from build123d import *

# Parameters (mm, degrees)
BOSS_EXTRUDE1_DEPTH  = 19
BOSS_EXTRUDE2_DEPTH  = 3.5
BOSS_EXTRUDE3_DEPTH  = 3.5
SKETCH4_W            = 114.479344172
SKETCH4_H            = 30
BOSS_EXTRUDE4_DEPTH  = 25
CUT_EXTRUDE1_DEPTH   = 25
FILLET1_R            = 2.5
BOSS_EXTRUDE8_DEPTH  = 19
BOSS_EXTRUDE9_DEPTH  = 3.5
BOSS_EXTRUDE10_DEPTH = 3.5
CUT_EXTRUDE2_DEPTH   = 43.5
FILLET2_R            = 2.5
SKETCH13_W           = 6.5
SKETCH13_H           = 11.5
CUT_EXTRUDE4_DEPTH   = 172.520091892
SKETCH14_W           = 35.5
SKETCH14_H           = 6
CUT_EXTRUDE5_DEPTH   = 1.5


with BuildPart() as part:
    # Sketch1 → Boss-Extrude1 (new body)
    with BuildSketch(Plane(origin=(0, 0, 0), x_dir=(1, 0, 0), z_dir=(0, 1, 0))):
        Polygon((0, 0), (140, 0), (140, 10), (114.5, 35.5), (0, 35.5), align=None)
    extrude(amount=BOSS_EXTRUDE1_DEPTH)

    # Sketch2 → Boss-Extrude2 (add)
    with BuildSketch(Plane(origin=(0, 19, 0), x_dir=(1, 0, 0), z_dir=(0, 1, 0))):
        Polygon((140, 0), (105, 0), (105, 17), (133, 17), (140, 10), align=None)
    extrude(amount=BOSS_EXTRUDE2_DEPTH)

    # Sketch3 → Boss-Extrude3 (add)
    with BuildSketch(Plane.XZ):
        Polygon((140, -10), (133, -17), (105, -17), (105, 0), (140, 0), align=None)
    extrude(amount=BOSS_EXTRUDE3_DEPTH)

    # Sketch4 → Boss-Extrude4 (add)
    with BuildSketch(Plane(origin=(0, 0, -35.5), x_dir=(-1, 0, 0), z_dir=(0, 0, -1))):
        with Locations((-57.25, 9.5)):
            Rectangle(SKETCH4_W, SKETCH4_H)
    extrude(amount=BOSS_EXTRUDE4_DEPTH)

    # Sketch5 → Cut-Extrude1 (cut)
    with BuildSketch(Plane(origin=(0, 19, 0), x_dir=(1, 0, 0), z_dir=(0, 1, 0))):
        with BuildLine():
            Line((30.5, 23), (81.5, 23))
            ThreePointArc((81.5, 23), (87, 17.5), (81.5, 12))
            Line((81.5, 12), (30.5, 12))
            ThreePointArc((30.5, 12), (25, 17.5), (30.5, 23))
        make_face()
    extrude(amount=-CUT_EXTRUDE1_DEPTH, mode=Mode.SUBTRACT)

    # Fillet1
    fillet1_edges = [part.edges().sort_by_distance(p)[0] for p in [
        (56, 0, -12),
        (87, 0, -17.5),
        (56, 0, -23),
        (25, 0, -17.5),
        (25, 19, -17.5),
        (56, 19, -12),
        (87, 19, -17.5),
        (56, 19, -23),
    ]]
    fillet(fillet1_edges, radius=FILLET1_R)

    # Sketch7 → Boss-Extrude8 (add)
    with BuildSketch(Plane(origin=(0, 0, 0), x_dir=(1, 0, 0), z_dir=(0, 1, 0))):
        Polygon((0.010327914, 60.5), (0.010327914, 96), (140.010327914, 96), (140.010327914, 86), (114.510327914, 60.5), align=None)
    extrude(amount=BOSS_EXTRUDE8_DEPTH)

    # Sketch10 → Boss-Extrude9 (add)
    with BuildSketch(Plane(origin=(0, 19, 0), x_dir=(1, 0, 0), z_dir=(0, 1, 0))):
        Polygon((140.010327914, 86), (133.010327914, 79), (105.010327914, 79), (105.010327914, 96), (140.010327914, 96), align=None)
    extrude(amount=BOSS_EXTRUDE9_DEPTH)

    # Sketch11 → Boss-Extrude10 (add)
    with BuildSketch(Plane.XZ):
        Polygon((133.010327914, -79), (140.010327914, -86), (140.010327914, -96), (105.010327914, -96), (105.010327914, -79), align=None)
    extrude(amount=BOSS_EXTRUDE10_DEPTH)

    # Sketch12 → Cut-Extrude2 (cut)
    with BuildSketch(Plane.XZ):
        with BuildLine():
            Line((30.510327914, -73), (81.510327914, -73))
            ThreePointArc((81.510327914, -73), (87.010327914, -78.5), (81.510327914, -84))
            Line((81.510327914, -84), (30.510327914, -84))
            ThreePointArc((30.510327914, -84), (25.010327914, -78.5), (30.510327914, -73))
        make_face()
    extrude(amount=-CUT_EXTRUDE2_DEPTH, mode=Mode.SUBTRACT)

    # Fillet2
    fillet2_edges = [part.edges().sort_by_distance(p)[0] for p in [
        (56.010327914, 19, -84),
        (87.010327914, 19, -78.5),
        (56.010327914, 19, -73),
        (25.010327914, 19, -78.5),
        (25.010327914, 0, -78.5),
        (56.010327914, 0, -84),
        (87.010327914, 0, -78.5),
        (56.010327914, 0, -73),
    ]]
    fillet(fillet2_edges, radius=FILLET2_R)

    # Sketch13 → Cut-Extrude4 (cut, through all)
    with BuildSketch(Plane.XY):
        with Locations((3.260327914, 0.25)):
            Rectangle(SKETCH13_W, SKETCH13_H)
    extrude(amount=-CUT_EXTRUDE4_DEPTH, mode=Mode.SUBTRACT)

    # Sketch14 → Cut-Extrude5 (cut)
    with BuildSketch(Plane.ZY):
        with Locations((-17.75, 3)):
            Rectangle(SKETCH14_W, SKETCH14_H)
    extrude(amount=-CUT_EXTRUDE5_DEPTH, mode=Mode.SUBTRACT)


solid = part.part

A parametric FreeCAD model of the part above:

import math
import FreeCAD as App
import Part
import Sketcher
from FreeCAD import Vector
Q = App.Units.Quantity


def edges_at(feature, points):
    """Names of the edges that pass closest to the given points."""
    edges = feature.Shape.Edges
    near = lambda p: min(range(len(edges)), key=lambda i: edges[i].distToShape(Part.Vertex(*p))[0])
    return sorted({f"Edge{near(p) + 1}" for p in points})


def add_polygon(sketch, points):
    """Adds a closed chain of lines whose ends are joined by coincident constraints."""
    first, n = sketch.GeometryCount, len(points)
    for a, b in zip(points, points[1:] + points[:1]):
        sketch.addGeometry(Part.LineSegment(App.Vector(*a, 0), App.Vector(*b, 0)), False)
    for i in range(n):
        sketch.addConstraint(Sketcher.Constraint("Coincident", first + i, 2, first + (i + 1) % n, 1))

doc = App.newDocument("Part")
params = doc.addObject("Spreadsheet::Sheet", "Params")
for row, (alias, value) in enumerate([
    ("sketch1_width", "140 mm"),
    ("sketch1_height", "10 mm"),
    ("sketch1_width2", "114.5 mm"),
    ("pad1_length", "19 mm"),
    ("sketch2_width", "35 mm"),
    ("sketch2_width2", "28 mm"),
    ("sketch2_height", "10 mm"),
    ("sketch2_height2", "17 mm"),
    ("pad2_length", "3.5 mm"),
    ("sketch3_width", "35 mm"),
    ("sketch3_width2", "28 mm"),
    ("sketch3_height", "10 mm"),
    ("sketch3_height2", "17 mm"),
    ("pad3_length", "3.5 mm"),
    ("sketch4_height", "30 mm"),
    ("pad4_length", "25 mm"),
    ("sketch5_radius", "5.5 mm"),
    ("sketch5_width", "51 mm"),
    ("pocket1_length", "25 mm"),
    ("fillet_radius", "2.5 mm"),
    ("sketch6_width", "140 mm"),
    ("sketch6_height", "10 mm"),
    ("sketch6_width2", "114.5 mm"),
    ("pad5_length", "19 mm"),
    ("sketch7_width", "35 mm"),
    ("sketch7_width2", "28 mm"),
    ("sketch7_height", "10 mm"),
    ("sketch7_height2", "17 mm"),
    ("pad6_length", "3.5 mm"),
    ("sketch8_width", "28 mm"),
    ("sketch8_width2", "35 mm"),
    ("sketch8_height", "17 mm"),
    ("sketch8_height2", "10 mm"),
    ("pad7_length", "3.5 mm"),
    ("sketch9_radius", "5.5 mm"),
    ("sketch9_width", "51 mm"),
    ("pocket2_length", "43.5 mm"),
    ("fillet2_radius", "2.5 mm"),
    ("sketch10_width", "6.5 mm"),
    ("sketch10_height", "11.5 mm"),
    ("sketch11_width", "6 mm"),
    ("sketch11_height", "35.5 mm"),
    ("pocket4_length", "1.5 mm"),
], start=1):
    params.set(f"A{row}", alias)
    params.set(f"B{row}", "=" + value)
    params.setAlias(f"B{row}", alias)

body = doc.addObject("PartDesign::Body", "Body")

# Sketch on XZ plane
sketch1 = body.newObject("Sketcher::SketchObject", "Sketch")
sketch1.AttachmentSupport = (doc.getObject("XZ_Plane"), [""])
sketch1.MapMode = "FlatFace"
add_polygon(sketch1, [(0, 0), (140, 0), (140, -10), (114, -36), (0, -36)])  # lines 0-4
sketch1.addConstraint(Sketcher.Constraint("Horizontal", 0))
sketch1.addConstraint(Sketcher.Constraint("Vertical", 1))
sketch1.addConstraint(Sketcher.Constraint("Horizontal", 3))
sketch1.addConstraint(Sketcher.Constraint("Vertical", 4))
sketch1.addConstraint(Sketcher.Constraint("Coincident", 4, 2, -1, 1))
sketch1.addConstraint(Sketcher.Constraint("DistanceX", 0, 1, 0, 2, Q("140 mm")))
sketch1.addConstraint(Sketcher.Constraint("DistanceY", 1, 2, 1, 1, Q("10 mm")))
sketch1.addConstraint(Sketcher.Constraint("Angle", 2, Q("-135 deg")))
sketch1.addConstraint(Sketcher.Constraint("DistanceX", 3, 2, 3, 1, Q("114.5 mm")))
sketch1.setExpression("Constraints[10]", "Params.sketch1_width")
sketch1.setExpression("Constraints[11]", "Params.sketch1_height")
sketch1.setExpression("Constraints[13]", "Params.sketch1_width2")
pad1 = body.newObject("PartDesign::Pad", "Pad")
pad1.Profile = sketch1
pad1.setExpression("Length", "Params.pad1_length")
pad1.Reversed = True

# Sketch on XZ plane
sketch2 = body.newObject("Sketcher::SketchObject", "Sketch001")
sketch2.AttachmentSupport = (doc.getObject("XZ_Plane"), [""])
sketch2.MapMode = "FlatFace"
sketch2.AttachmentOffset = App.Placement(Vector(0, 0, -19), App.Rotation())
add_polygon(sketch2, [(105, 0), (140, 0), (140, -10), (133, -17), (105, -17)])  # lines 0-4
sketch2.addConstraint(Sketcher.Constraint("Horizontal", 0))
sketch2.addConstraint(Sketcher.Constraint("Vertical", 1))
sketch2.addConstraint(Sketcher.Constraint("Horizontal", 3))
sketch2.addConstraint(Sketcher.Constraint("Vertical", 4))
sketch2.addConstraint(Sketcher.Constraint("PointOnObject", 0, 2, -1))
sketch2.addConstraint(Sketcher.Constraint("DistanceX", 0, 1, 0, 2, Q("35 mm")))
sketch2.addConstraint(Sketcher.Constraint("DistanceX", 3, 2, 3, 1, Q("28 mm")))
sketch2.addConstraint(Sketcher.Constraint("DistanceY", 1, 2, 1, 1, Q("10 mm")))
sketch2.addConstraint(Sketcher.Constraint("DistanceY", 4, 1, 4, 2, Q("17 mm")))
sketch2.addConstraint(Sketcher.Constraint("DistanceX", -1, 1, 0, 2, Q("140 mm")))
sketch2.setExpression("Constraints[10]", "Params.sketch2_width")
sketch2.setExpression("Constraints[11]", "Params.sketch2_width2")
sketch2.setExpression("Constraints[12]", "Params.sketch2_height")
sketch2.setExpression("Constraints[13]", "Params.sketch2_height2")
pad2 = body.newObject("PartDesign::Pad", "Pad001")
pad2.Profile = sketch2
pad2.setExpression("Length", "Params.pad2_length")
pad2.Reversed = True

# Sketch on XZ plane
sketch3 = body.newObject("Sketcher::SketchObject", "Sketch002")
sketch3.AttachmentSupport = (doc.getObject("XZ_Plane"), [""])
sketch3.MapMode = "FlatFace"
add_polygon(sketch3, [(133, -17), (140, -10), (140, 0), (105, 0), (105, -17)])  # lines 0-4
sketch3.addConstraint(Sketcher.Constraint("Vertical", 1))
sketch3.addConstraint(Sketcher.Constraint("Horizontal", 2))
sketch3.addConstraint(Sketcher.Constraint("Vertical", 3))
sketch3.addConstraint(Sketcher.Constraint("Horizontal", 4))
sketch3.addConstraint(Sketcher.Constraint("PointOnObject", 1, 2, -1))
sketch3.addConstraint(Sketcher.Constraint("DistanceX", 2, 2, 2, 1, Q("35 mm")))
sketch3.addConstraint(Sketcher.Constraint("DistanceX", 4, 1, 4, 2, Q("28 mm")))
sketch3.addConstraint(Sketcher.Constraint("DistanceY", 1, 1, 1, 2, Q("10 mm")))
sketch3.addConstraint(Sketcher.Constraint("DistanceY", 3, 2, 3, 1, Q("17 mm")))
sketch3.addConstraint(Sketcher.Constraint("DistanceX", -1, 1, 0, 2, Q("140 mm")))
sketch3.setExpression("Constraints[10]", "Params.sketch3_width")
sketch3.setExpression("Constraints[11]", "Params.sketch3_width2")
sketch3.setExpression("Constraints[12]", "Params.sketch3_height")
sketch3.setExpression("Constraints[13]", "Params.sketch3_height2")
pad3 = body.newObject("PartDesign::Pad", "Pad002")
pad3.Profile = sketch3
pad3.setExpression("Length", "Params.pad3_length")

# Sketch on XY plane
sketch4 = body.newObject("Sketcher::SketchObject", "Sketch003")
sketch4.AttachmentSupport = (doc.getObject("XY_Plane"), [""])
sketch4.MapMode = "FlatFace"
sketch4.AttachmentOffset = App.Placement(Vector(0, 0, -35.5), App.Rotation())
add_polygon(sketch4, [(114, 24), (114, -6), (0, -6), (0, 24)])  # lines 0-3
sketch4.addConstraint(Sketcher.Constraint("Vertical", 0))
sketch4.addConstraint(Sketcher.Constraint("Horizontal", 1))
sketch4.addConstraint(Sketcher.Constraint("Vertical", 2))
sketch4.addConstraint(Sketcher.Constraint("Horizontal", 3))
sketch4.addConstraint(Sketcher.Constraint("DistanceY", 0, 2, 0, 1, Q("30 mm")))
sketch4.addConstraint(Sketcher.Constraint("DistanceY", 0, 2, -1, 1, Q("5.5 mm")))
sketch4.addConstraint(Sketcher.Constraint("DistanceX", 1, 2, 1, 1, Q("114.479344 mm")))
sketch4.addConstraint(Sketcher.Constraint("DistanceX", -1, 1, 0, 2, Q("114.489672 mm")))
sketch4.setExpression("Constraints[8]", "Params.sketch4_height")
pad4 = body.newObject("PartDesign::Pad", "Pad003")
pad4.Profile = sketch4
pad4.setExpression("Length", "Params.pad4_length")
pad4.Reversed = True

# Sketch on XZ plane
sketch5 = body.newObject("Sketcher::SketchObject", "Sketch004")
sketch5.AttachmentSupport = (doc.getObject("XZ_Plane"), [""])
sketch5.MapMode = "FlatFace"
sketch5.AttachmentOffset = App.Placement(Vector(0, 0, -19), App.Rotation())
sketch5.addGeometry(Part.LineSegment(Vector(82, -23, 0), Vector(30, -23, 0)), False)
sketch5.addGeometry(Part.ArcOfCircle(Part.Circle(Vector(30, -18, 0), Vector(0, 0, 1), 6), math.radians(90), math.radians(270)), False)
sketch5.addGeometry(Part.LineSegment(Vector(30, -12, 0), Vector(82, -12, 0)), False)
sketch5.addGeometry(Part.ArcOfCircle(Part.Circle(Vector(82, -18, 0), Vector(0, 0, 1), 6), math.radians(-90), math.radians(90)), False)
sketch5.addConstraint(Sketcher.Constraint("Tangent", 0, 2, 1, 2))
sketch5.addConstraint(Sketcher.Constraint("Tangent", 1, 1, 2, 1))
sketch5.addConstraint(Sketcher.Constraint("Tangent", 2, 2, 3, 2))
sketch5.addConstraint(Sketcher.Constraint("Tangent", 3, 1, 0, 1))
sketch5.addConstraint(Sketcher.Constraint("Horizontal", 0))
sketch5.addConstraint(Sketcher.Constraint("Horizontal", 2))
sketch5.addConstraint(Sketcher.Constraint("Radius", 1, Q("5.5 mm")))
sketch5.addConstraint(Sketcher.Constraint("DistanceX", 0, 2, 0, 1, Q("51 mm")))
sketch5.addConstraint(Sketcher.Constraint("DistanceY", 0, 2, -1, 1, Q("23 mm")))
sketch5.addConstraint(Sketcher.Constraint("DistanceX", -1, 1, 1, 3, Q("30.5 mm")))
sketch5.setExpression("Constraints[6]", "Params.sketch5_radius")
sketch5.setExpression("Constraints[7]", "Params.sketch5_width")
pocket1 = body.newObject("PartDesign::Pocket", "Pocket")
pocket1.Profile = sketch5
pocket1.setExpression("Length", "Params.pocket1_length")
pocket1.Reversed = True
doc.recompute()

fillet = body.newObject("PartDesign::Fillet", "Fillet")
fillet.Base = (pocket1, edges_at(pocket1, [
    (56, 0, -12),
    (87, 0, -17.5),
    (56, 0, -23),
    (25, 0, -17.5),
    (25, 19, -17.5),
    (56, 19, -12),
    (87, 19, -17.5),
    (56, 19, -23),
]))
fillet.setExpression("Radius", "Params.fillet_radius")

# Sketch on XZ plane
sketch6 = body.newObject("Sketcher::SketchObject", "Sketch005")
sketch6.AttachmentSupport = (doc.getObject("XZ_Plane"), [""])
sketch6.MapMode = "FlatFace"
add_polygon(sketch6, [(0, -96), (0, -60), (115, -60), (140, -86), (140, -96)])  # lines 0-4
sketch6.addConstraint(Sketcher.Constraint("Vertical", 0))
sketch6.addConstraint(Sketcher.Constraint("Horizontal", 1))
sketch6.addConstraint(Sketcher.Constraint("Vertical", 3))
sketch6.addConstraint(Sketcher.Constraint("Horizontal", 4))
sketch6.addConstraint(Sketcher.Constraint("DistanceX", 4, 2, 4, 1, Q("140 mm")))
sketch6.addConstraint(Sketcher.Constraint("DistanceY", 3, 2, 3, 1, Q("10 mm")))
sketch6.addConstraint(Sketcher.Constraint("Angle", 2, Q("-45 deg")))
sketch6.addConstraint(Sketcher.Constraint("DistanceX", 1, 1, 1, 2, Q("114.5 mm")))
sketch6.addConstraint(Sketcher.Constraint("DistanceY", 2, 2, -1, 1, Q("86 mm")))
sketch6.addConstraint(Sketcher.Constraint("DistanceX", -1, 1, 0, 2, Q("0.010328 mm")))
sketch6.setExpression("Constraints[9]", "Params.sketch6_width")
sketch6.setExpression("Constraints[10]", "Params.sketch6_height")
sketch6.setExpression("Constraints[12]", "Params.sketch6_width2")
pad5 = body.newObject("PartDesign::Pad", "Pad004")
pad5.Profile = sketch6
pad5.setExpression("Length", "Params.pad5_length")
pad5.Reversed = True

# Sketch on XZ plane
sketch7 = body.newObject("Sketcher::SketchObject", "Sketch006")
sketch7.AttachmentSupport = (doc.getObject("XZ_Plane"), [""])
sketch7.MapMode = "FlatFace"
sketch7.AttachmentOffset = App.Placement(Vector(0, 0, -19), App.Rotation())
add_polygon(sketch7, [(133, -79), (140, -86), (140, -96), (105, -96), (105, -79)])  # lines 0-4
sketch7.addConstraint(Sketcher.Constraint("Vertical", 1))
sketch7.addConstraint(Sketcher.Constraint("Horizontal", 2))
sketch7.addConstraint(Sketcher.Constraint("Vertical", 3))
sketch7.addConstraint(Sketcher.Constraint("Horizontal", 4))
sketch7.addConstraint(Sketcher.Constraint("DistanceX", 2, 2, 2, 1, Q("35 mm")))
sketch7.addConstraint(Sketcher.Constraint("DistanceX", 4, 1, 4, 2, Q("28 mm")))
sketch7.addConstraint(Sketcher.Constraint("DistanceY", 1, 2, 1, 1, Q("10 mm")))
sketch7.addConstraint(Sketcher.Constraint("DistanceY", 3, 1, 3, 2, Q("17 mm")))
sketch7.addConstraint(Sketcher.Constraint("DistanceY", 0, 2, -1, 1, Q("86 mm")))
sketch7.addConstraint(Sketcher.Constraint("DistanceX", -1, 1, 0, 2, Q("140.010328 mm")))
sketch7.setExpression("Constraints[9]", "Params.sketch7_width")
sketch7.setExpression("Constraints[10]", "Params.sketch7_width2")
sketch7.setExpression("Constraints[11]", "Params.sketch7_height")
sketch7.setExpression("Constraints[12]", "Params.sketch7_height2")
pad6 = body.newObject("PartDesign::Pad", "Pad005")
pad6.Profile = sketch7
pad6.setExpression("Length", "Params.pad6_length")
pad6.Reversed = True

# Sketch on XZ plane
sketch8 = body.newObject("Sketcher::SketchObject", "Sketch007")
sketch8.AttachmentSupport = (doc.getObject("XZ_Plane"), [""])
sketch8.MapMode = "FlatFace"
add_polygon(sketch8, [(140, -86), (133, -79), (105, -79), (105, -96), (140, -96)])  # lines 0-4
sketch8.addConstraint(Sketcher.Constraint("Horizontal", 1))
sketch8.addConstraint(Sketcher.Constraint("Vertical", 2))
sketch8.addConstraint(Sketcher.Constraint("Horizontal", 3))
sketch8.addConstraint(Sketcher.Constraint("Vertical", 4))
sketch8.addConstraint(Sketcher.Constraint("DistanceX", 1, 2, 1, 1, Q("28 mm")))
sketch8.addConstraint(Sketcher.Constraint("DistanceX", 3, 1, 3, 2, Q("35 mm")))
sketch8.addConstraint(Sketcher.Constraint("DistanceY", 2, 2, 2, 1, Q("17 mm")))
sketch8.addConstraint(Sketcher.Constraint("DistanceY", 4, 1, 4, 2, Q("10 mm")))
sketch8.addConstraint(Sketcher.Constraint("DistanceY", 0, 2, -1, 1, Q("79 mm")))
sketch8.addConstraint(Sketcher.Constraint("DistanceX", -1, 1, 0, 2, Q("133.010328 mm")))
sketch8.setExpression("Constraints[9]", "Params.sketch8_width")
sketch8.setExpression("Constraints[10]", "Params.sketch8_width2")
sketch8.setExpression("Constraints[11]", "Params.sketch8_height")
sketch8.setExpression("Constraints[12]", "Params.sketch8_height2")
pad7 = body.newObject("PartDesign::Pad", "Pad006")
pad7.Profile = sketch8
pad7.setExpression("Length", "Params.pad7_length")

# Sketch on XZ plane
sketch9 = body.newObject("Sketcher::SketchObject", "Sketch008")
sketch9.AttachmentSupport = (doc.getObject("XZ_Plane"), [""])
sketch9.MapMode = "FlatFace"
sketch9.addGeometry(Part.LineSegment(Vector(82, -73, 0), Vector(31, -73, 0)), False)
sketch9.addGeometry(Part.ArcOfCircle(Part.Circle(Vector(31, -78, 0), Vector(0, 0, 1), 6), math.radians(90), math.radians(270)), False)
sketch9.addGeometry(Part.LineSegment(Vector(31, -84, 0), Vector(82, -84, 0)), False)
sketch9.addGeometry(Part.ArcOfCircle(Part.Circle(Vector(82, -78, 0), Vector(0, 0, 1), 6), math.radians(-90), math.radians(90)), False)
sketch9.addConstraint(Sketcher.Constraint("Tangent", 0, 2, 1, 1))
sketch9.addConstraint(Sketcher.Constraint("Tangent", 1, 2, 2, 1))
sketch9.addConstraint(Sketcher.Constraint("Tangent", 2, 2, 3, 1))
sketch9.addConstraint(Sketcher.Constraint("Tangent", 3, 2, 0, 1))
sketch9.addConstraint(Sketcher.Constraint("Horizontal", 0))
sketch9.addConstraint(Sketcher.Constraint("Horizontal", 2))
sketch9.addConstraint(Sketcher.Constraint("Radius", 1, Q("5.5 mm")))
sketch9.addConstraint(Sketcher.Constraint("DistanceX", 0, 2, 0, 1, Q("51 mm")))
sketch9.addConstraint(Sketcher.Constraint("DistanceY", 0, 2, -1, 1, Q("73 mm")))
sketch9.addConstraint(Sketcher.Constraint("DistanceX", -1, 1, 1, 3, Q("30.510328 mm")))
sketch9.setExpression("Constraints[6]", "Params.sketch9_radius")
sketch9.setExpression("Constraints[7]", "Params.sketch9_width")
pocket2 = body.newObject("PartDesign::Pocket", "Pocket001")
pocket2.Profile = sketch9
pocket2.setExpression("Length", "Params.pocket2_length")
doc.recompute()

fillet2 = body.newObject("PartDesign::Fillet", "Fillet001")
fillet2.Base = (pocket2, edges_at(pocket2, [
    (56.01, 19, -84),
    (87.01, 19, -78.5),
    (56.01, 19, -73),
    (25.01, 19, -78.5),
    (25.01, 0, -78.5),
    (56.01, 0, -84),
    (87.01, 0, -78.5),
    (56.01, 0, -73),
]))
fillet2.setExpression("Radius", "Params.fillet2_radius")

# Sketch on XY plane
sketch10 = body.newObject("Sketcher::SketchObject", "Sketch009")
sketch10.AttachmentSupport = (doc.getObject("XY_Plane"), [""])
sketch10.MapMode = "FlatFace"
add_polygon(sketch10, [(0, 6), (0, -6), (7, -6), (7, 6)])  # lines 0-3
sketch10.addConstraint(Sketcher.Constraint("Vertical", 0))
sketch10.addConstraint(Sketcher.Constraint("Horizontal", 1))
sketch10.addConstraint(Sketcher.Constraint("Vertical", 2))
sketch10.addConstraint(Sketcher.Constraint("Horizontal", 3))
sketch10.addConstraint(Sketcher.Constraint("DistanceX", 1, 1, 1, 2, Q("6.5 mm")))
sketch10.addConstraint(Sketcher.Constraint("DistanceY", 0, 2, 0, 1, Q("11.5 mm")))
sketch10.addConstraint(Sketcher.Constraint("DistanceY", -1, 1, 2, 2, Q("6 mm")))
sketch10.addConstraint(Sketcher.Constraint("DistanceX", -1, 1, 0, 2, Q("0.010328 mm")))
sketch10.setExpression("Constraints[8]", "Params.sketch10_width")
sketch10.setExpression("Constraints[9]", "Params.sketch10_height")
pocket3 = body.newObject("PartDesign::Pocket", "Pocket002")
pocket3.Profile = sketch10
pocket3.Type = "ThroughAll"

# Sketch on YZ plane
sketch11 = body.newObject("Sketcher::SketchObject", "Sketch010")
sketch11.AttachmentSupport = (doc.getObject("YZ_Plane"), [""])
sketch11.MapMode = "FlatFace"
add_polygon(sketch11, [(6, -36), (0, -36), (0, 0), (6, 0)])  # lines 0-3
sketch11.addConstraint(Sketcher.Constraint("Horizontal", 0))
sketch11.addConstraint(Sketcher.Constraint("Vertical", 1))
sketch11.addConstraint(Sketcher.Constraint("Horizontal", 2))
sketch11.addConstraint(Sketcher.Constraint("Vertical", 3))
sketch11.addConstraint(Sketcher.Constraint("Coincident", 1, 2, -1, 1))
sketch11.addConstraint(Sketcher.Constraint("DistanceX", 0, 2, 0, 1, Q("6 mm")))
sketch11.addConstraint(Sketcher.Constraint("DistanceY", 1, 1, 1, 2, Q("35.5 mm")))
sketch11.setExpression("Constraints[9]", "Params.sketch11_width")
sketch11.setExpression("Constraints[10]", "Params.sketch11_height")
pocket4 = body.newObject("PartDesign::Pocket", "Pocket003")
pocket4.Profile = sketch11
pocket4.setExpression("Length", "Params.pocket4_length")
pocket4.Reversed = True

doc.recompute()
